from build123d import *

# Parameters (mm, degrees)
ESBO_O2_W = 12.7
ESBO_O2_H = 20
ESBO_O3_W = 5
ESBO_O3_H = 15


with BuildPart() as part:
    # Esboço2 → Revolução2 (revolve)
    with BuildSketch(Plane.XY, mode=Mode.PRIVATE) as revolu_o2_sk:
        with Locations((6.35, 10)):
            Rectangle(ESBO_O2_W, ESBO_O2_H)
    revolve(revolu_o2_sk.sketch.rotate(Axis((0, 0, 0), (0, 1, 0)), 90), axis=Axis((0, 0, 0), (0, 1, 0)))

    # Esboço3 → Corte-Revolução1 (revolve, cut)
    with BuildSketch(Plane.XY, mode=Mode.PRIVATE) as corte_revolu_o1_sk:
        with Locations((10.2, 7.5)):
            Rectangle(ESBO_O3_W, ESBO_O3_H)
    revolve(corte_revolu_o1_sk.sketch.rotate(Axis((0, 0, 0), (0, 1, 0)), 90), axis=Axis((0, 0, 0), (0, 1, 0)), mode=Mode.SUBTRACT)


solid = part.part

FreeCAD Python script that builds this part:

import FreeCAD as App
import Part
import Sketcher
Q = App.Units.Quantity

doc = App.newDocument("Part")
body = doc.addObject("PartDesign::Body", "Body")

# Sketch on XY plane
sketch1 = body.newObject("Sketcher::SketchObject", "Sketch")
sketch1.AttachmentSupport = (doc.getObject("XY_Plane"), [""])
sketch1.MapMode = "FlatFace"
sketch1.addGeometry(Part.LineSegment(App.Vector(0, 20, 0), App.Vector(0, 0, 0)), False)
sketch1.addGeometry(Part.LineSegment(App.Vector(0, 0, 0), App.Vector(13, 0, 0)), False)
sketch1.addGeometry(Part.LineSegment(App.Vector(13, 0, 0), App.Vector(13, 20, 0)), False)
sketch1.addGeometry(Part.LineSegment(App.Vector(13, 20, 0), App.Vector(0, 20, 0)), False)
sketch1.addConstraint(Sketcher.Constraint("Coincident", 0, 2, 1, 1))
sketch1.addConstraint(Sketcher.Constraint("Coincident", 1, 2, 2, 1))
sketch1.addConstraint(Sketcher.Constraint("Coincident", 2, 2, 3, 1))
sketch1.addConstraint(Sketcher.Constraint("Coincident", 3, 2, 0, 1))
sketch1.addConstraint(Sketcher.Constraint("Vertical", 0))
sketch1.addConstraint(Sketcher.Constraint("Horizontal", 1))
sketch1.addConstraint(Sketcher.Constraint("Vertical", 2))
sketch1.addConstraint(Sketcher.Constraint("Horizontal", 3))
sketch1.addConstraint(Sketcher.Constraint("Coincident", 0, 2, -1, 1))
sketch1.addConstraint(Sketcher.Constraint("DistanceY", 0, 2, 0, 1, Q("20 mm")))
sketch1.addConstraint(Sketcher.Constraint("DistanceX", 1, 1, 1, 2, Q("12.7 mm")))
revolution = body.newObject("PartDesign::Revolution", "Revolution")
revolution.Profile = sketch1
revolution.ReferenceAxis = (sketch1, ["V_Axis"])
revolution.Angle = 360

# Sketch on XY plane
sketch2 = body.newObject("Sketcher::SketchObject", "Sketch001")
sketch2.AttachmentSupport = (doc.getObject("XY_Plane"), [""])
sketch2.MapMode = "FlatFace"
sketch2.addGeometry(Part.LineSegment(App.Vector(7.7, 15, 0), App.Vector(7.7, 0, 0)), False)
sketch2.addGeometry(Part.LineSegment(App.Vector(7.7, 0, 0), App.Vector(12.7, 0, 0)), False)
sketch2.addGeometry(Part.LineSegment(App.Vector(12.7, 0, 0), App.Vector(12.7, 15, 0)), False)
sketch2.addGeometry(Part.LineSegment(App.Vector(12.7, 15, 0), App.Vector(7.7, 15, 0)), False)
sketch2.addConstraint(Sketcher.Constraint("Coincident", 0, 2, 1, 1))
sketch2.addConstraint(Sketcher.Constraint("Coincident", 1, 2, 2, 1))
sketch2.addConstraint(Sketcher.Constraint("Coincident", 2, 2, 3, 1))
sketch2.addConstraint(Sketcher.Constraint("Coincident", 3, 2, 0, 1))
sketch2.addConstraint(Sketcher.Constraint("Vertical", 0))
sketch2.addConstraint(Sketcher.Constraint("Horizontal", 1))
sketch2.addConstraint(Sketcher.Constraint("Vertical", 2))
sketch2.addConstraint(Sketcher.Constraint("Horizontal", 3))
sketch2.addConstraint(Sketcher.Constraint("PointOnObject", 0, 2, -1))
sketch2.addConstraint(Sketcher.Constraint("DistanceX", 1, 1, 1, 2, Q("5 mm")))
sketch2.addConstraint(Sketcher.Constraint("DistanceY", 0, 2, 0, 1, Q("15 mm")))
sketch2.addConstraint(Sketcher.Constraint("DistanceX", -1, 1, 0, 2, Q("7.7 mm")))
groove = body.newObject("PartDesign::Groove", "Groove")
groove.Profile = sketch2
groove.ReferenceAxis = (sketch2, ["V_Axis"])
groove.Angle = 360

doc.recompute()
